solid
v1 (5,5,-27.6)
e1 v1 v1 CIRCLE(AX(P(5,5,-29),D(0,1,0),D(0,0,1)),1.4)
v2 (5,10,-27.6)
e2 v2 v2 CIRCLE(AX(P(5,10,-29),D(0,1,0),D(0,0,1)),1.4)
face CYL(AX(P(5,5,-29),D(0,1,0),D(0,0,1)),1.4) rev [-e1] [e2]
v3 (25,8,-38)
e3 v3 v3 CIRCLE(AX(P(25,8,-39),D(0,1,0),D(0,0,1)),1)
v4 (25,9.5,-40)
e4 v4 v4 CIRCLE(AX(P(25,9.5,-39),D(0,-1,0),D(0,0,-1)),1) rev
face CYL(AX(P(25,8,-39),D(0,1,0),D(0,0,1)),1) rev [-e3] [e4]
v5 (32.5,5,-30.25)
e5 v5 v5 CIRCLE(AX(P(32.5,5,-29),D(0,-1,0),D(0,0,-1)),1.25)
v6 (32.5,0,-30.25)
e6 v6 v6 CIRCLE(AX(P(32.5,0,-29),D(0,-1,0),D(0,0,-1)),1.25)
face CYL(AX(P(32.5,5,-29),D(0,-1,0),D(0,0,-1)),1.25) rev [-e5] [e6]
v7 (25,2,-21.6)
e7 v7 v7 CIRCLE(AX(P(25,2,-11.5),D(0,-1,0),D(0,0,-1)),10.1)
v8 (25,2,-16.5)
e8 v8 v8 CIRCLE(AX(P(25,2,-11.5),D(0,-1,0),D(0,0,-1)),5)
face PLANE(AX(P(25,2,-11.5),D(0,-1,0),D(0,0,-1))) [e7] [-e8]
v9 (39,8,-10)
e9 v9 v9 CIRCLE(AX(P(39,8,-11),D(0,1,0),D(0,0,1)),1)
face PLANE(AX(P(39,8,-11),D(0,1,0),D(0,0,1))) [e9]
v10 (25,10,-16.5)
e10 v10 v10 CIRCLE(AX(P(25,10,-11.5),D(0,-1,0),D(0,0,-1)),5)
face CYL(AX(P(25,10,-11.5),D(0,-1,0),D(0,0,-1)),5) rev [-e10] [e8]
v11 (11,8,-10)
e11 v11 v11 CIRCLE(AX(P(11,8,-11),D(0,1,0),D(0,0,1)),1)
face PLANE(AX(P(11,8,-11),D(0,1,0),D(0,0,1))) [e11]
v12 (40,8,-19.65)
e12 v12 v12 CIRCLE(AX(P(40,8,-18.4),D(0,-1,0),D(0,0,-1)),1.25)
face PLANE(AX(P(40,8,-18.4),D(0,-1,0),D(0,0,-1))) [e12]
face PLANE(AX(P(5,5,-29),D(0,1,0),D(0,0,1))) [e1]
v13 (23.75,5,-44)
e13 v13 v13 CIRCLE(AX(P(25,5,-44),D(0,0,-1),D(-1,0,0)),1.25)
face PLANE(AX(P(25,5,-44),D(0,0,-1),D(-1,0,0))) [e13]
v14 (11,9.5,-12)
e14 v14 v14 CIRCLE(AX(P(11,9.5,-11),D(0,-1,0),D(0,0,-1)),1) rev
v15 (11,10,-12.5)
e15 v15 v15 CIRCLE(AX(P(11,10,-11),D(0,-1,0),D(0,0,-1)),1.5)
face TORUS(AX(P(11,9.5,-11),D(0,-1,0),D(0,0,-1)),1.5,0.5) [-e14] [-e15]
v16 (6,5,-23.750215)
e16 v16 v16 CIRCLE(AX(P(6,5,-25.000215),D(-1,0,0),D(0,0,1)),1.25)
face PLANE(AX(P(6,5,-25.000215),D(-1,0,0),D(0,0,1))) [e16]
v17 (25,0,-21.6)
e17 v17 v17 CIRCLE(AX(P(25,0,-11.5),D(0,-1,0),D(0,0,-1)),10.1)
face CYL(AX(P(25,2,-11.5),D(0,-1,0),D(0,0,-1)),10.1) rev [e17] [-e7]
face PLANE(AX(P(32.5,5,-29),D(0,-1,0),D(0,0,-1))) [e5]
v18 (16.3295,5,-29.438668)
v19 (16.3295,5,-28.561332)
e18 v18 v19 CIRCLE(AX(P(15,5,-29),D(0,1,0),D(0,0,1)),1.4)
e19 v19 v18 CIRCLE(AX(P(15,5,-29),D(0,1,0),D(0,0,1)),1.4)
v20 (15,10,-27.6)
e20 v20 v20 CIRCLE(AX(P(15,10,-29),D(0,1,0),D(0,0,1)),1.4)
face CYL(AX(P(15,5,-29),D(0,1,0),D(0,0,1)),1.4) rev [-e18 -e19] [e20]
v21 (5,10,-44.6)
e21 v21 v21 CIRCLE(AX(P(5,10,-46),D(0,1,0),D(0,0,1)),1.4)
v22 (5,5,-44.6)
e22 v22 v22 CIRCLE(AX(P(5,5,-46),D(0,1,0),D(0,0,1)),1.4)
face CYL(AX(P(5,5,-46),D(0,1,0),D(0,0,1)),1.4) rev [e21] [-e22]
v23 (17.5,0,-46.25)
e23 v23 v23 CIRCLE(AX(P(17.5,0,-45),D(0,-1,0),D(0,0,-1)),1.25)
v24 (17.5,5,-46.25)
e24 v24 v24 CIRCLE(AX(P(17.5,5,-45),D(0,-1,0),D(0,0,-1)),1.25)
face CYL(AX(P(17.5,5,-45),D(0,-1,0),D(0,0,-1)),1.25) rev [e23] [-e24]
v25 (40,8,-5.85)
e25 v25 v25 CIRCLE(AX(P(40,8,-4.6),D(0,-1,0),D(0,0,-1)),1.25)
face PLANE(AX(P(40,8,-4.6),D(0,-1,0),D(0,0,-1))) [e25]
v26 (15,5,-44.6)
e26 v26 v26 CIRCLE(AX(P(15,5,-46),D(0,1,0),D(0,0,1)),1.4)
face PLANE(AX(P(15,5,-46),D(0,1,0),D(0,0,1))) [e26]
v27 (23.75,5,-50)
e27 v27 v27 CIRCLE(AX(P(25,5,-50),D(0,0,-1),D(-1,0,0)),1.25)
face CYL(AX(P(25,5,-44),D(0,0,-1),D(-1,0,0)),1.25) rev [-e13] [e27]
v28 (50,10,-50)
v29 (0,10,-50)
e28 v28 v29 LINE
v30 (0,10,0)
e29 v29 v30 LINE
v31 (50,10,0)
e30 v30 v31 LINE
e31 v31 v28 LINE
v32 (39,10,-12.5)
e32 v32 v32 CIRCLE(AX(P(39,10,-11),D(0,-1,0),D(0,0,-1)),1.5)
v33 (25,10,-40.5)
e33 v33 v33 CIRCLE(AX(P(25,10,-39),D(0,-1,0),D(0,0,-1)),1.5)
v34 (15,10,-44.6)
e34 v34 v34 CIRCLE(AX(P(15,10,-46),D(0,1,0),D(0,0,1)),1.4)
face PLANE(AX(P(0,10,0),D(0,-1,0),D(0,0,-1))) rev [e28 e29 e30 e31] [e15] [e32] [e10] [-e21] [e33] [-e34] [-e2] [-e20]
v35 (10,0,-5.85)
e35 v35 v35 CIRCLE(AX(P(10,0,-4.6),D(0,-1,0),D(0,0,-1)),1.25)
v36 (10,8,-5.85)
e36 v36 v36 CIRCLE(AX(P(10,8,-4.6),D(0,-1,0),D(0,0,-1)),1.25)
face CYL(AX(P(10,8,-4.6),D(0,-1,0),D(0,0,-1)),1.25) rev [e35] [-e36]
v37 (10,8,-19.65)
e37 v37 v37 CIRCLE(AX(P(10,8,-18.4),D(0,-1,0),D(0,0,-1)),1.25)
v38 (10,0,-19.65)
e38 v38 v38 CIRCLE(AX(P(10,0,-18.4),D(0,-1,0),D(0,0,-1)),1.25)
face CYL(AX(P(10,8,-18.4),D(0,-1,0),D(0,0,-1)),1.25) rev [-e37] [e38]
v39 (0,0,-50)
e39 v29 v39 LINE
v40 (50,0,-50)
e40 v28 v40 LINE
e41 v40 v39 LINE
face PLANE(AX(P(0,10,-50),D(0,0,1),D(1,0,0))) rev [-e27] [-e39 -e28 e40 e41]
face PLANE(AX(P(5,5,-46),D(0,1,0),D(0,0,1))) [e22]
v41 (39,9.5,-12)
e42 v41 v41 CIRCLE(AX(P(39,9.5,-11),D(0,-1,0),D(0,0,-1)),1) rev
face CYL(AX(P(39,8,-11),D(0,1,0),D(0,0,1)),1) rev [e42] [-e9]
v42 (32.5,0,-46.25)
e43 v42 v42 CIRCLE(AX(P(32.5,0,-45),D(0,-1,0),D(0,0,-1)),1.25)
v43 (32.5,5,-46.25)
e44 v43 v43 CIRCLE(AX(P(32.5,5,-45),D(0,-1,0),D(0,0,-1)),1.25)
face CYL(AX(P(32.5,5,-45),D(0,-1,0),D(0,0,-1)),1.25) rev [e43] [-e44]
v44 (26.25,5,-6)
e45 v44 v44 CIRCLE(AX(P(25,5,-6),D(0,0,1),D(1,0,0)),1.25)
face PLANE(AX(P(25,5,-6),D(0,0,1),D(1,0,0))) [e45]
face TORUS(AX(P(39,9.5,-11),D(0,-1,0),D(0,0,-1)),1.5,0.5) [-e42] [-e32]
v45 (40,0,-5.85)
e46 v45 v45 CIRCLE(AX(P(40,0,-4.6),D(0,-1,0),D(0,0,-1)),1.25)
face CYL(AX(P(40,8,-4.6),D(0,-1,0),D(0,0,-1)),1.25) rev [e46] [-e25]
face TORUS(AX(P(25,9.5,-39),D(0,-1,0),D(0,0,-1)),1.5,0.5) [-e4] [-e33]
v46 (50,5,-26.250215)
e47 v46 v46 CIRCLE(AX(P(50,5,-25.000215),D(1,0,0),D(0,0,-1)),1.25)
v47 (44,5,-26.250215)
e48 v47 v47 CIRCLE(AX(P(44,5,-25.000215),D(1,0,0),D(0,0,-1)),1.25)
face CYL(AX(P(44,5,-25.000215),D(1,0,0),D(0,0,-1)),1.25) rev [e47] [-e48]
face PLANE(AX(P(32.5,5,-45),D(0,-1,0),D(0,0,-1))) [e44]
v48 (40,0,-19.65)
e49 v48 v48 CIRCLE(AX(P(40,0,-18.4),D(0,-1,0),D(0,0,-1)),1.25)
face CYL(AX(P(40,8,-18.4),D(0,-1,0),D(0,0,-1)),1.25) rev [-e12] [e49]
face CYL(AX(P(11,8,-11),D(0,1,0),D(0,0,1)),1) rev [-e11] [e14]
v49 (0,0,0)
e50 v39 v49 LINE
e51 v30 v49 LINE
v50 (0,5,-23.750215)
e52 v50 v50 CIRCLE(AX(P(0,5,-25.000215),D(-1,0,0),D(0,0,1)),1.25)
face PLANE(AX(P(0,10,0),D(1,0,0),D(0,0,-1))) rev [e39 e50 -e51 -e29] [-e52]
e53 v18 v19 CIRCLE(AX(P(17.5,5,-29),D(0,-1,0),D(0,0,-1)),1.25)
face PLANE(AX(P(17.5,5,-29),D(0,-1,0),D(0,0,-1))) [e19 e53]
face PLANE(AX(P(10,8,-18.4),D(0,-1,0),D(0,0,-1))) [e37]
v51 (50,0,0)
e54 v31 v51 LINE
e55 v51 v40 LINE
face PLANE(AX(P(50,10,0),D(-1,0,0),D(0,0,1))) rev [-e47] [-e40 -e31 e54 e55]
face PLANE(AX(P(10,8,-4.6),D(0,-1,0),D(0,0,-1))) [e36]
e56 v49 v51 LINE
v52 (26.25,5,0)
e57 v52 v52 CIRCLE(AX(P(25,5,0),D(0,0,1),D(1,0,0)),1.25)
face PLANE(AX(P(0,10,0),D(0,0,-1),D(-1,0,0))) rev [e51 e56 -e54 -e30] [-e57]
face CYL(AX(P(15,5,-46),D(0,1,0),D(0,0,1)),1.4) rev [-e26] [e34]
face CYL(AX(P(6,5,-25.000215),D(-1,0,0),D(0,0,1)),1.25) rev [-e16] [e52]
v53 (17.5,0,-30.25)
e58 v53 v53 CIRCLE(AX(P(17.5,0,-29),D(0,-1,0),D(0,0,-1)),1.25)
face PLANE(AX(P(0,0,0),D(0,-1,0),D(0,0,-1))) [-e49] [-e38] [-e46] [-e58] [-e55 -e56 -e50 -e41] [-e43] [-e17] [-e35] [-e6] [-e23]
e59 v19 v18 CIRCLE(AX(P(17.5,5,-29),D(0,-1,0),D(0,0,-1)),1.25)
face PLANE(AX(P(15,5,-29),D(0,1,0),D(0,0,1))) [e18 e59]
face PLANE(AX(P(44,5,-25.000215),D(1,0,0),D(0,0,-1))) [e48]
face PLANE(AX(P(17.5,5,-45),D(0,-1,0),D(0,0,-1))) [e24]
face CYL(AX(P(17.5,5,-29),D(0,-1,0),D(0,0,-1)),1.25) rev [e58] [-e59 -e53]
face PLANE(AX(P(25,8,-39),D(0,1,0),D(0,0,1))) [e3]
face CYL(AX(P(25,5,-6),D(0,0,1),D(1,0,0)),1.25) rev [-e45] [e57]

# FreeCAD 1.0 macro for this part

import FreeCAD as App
import Part
import Sketcher

V = App.Vector
Q = App.Units.Quantity


def edges_at(feature, points):
    """Names of the edges that pass closest to the given points."""
    edges = feature.Shape.Edges
    near = lambda p: min(range(len(edges)), key=lambda i: edges[i].distToShape(Part.Vertex(*p))[0])
    return sorted({f"Edge{near(p) + 1}" for p in points})


def add_polygon(sketch, points):
    """Adds a closed chain of lines whose ends are joined by coincident constraints."""
    first, n = sketch.GeometryCount, len(points)
    for a, b in zip(points, points[1:] + points[:1]):
        sketch.addGeometry(Part.LineSegment(App.Vector(*a, 0), App.Vector(*b, 0)), False)
    for i in range(n):
        sketch.addConstraint(Sketcher.Constraint("Coincident", first + i, 2, first + (i + 1) % n, 1))

doc = App.newDocument("Part")
body = doc.addObject("PartDesign::Body", "Body")

# Sketch on XZ plane
sketch1 = body.newObject("Sketcher::SketchObject", "Sketch")
sketch1.AttachmentSupport = (doc.getObject("XZ_Plane"), [""])
sketch1.MapMode = "FlatFace"
add_polygon(sketch1, [(0, -50), (0, 0), (50, 0), (50, -50)])  # lines 0-3
sketch1.addConstraint(Sketcher.Constraint("Vertical", 0))
sketch1.addConstraint(Sketcher.Constraint("Horizontal", 1))
sketch1.addConstraint(Sketcher.Constraint("Vertical", 2))
sketch1.addConstraint(Sketcher.Constraint("Horizontal", 3))
sketch1.addConstraint(Sketcher.Constraint("Coincident", 0, 2, -1, 1))
sketch1.addConstraint(Sketcher.Constraint("Equal", 3, 0))
sketch1.addConstraint(Sketcher.Constraint("DistanceX", 1, 1, 1, 2, Q("50 mm")))
pad1 = body.newObject("PartDesign::Pad", "Pad")
pad1.Profile = sketch1
pad1.Length = 10
pad1.Reversed = True

# Sketch on XZ plane
sketch2 = body.newObject("Sketcher::SketchObject", "Sketch001")
sketch2.AttachmentSupport = (doc.getObject("XZ_Plane"), [""])
sketch2.MapMode = "FlatFace"
sketch2.addGeometry(Part.Circle(V(25, -12, 0), V(0, 0, 1), 10), False)
sketch2.addConstraint(Sketcher.Constraint("Diameter", 0, Q("20.2 mm")))
sketch2.addConstraint(Sketcher.Constraint("DistanceX", -1, 1, 0, 3, Q("25 mm")))
sketch2.addConstraint(Sketcher.Constraint("DistanceY", 0, 3, -1, 1, Q("11.5 mm")))
pocket1 = body.newObject("PartDesign::Pocket", "Pocket")
pocket1.Profile = sketch2
pocket1.Length = 2

# Sketch on XZ plane
sketch3 = body.newObject("Sketcher::SketchObject", "Sketch002")
sketch3.AttachmentSupport = (doc.getObject("XZ_Plane"), [""])
sketch3.MapMode = "FlatFace"
sketch3.AttachmentOffset = App.Placement(V(0, 0, -2), App.Rotation())
sketch3.addGeometry(Part.Circle(V(25, -12, 0), V(0, 0, 1), 5), False)
sketch3.addConstraint(Sketcher.Constraint("Diameter", 0, Q("10 mm")))
sketch3.addConstraint(Sketcher.Constraint("DistanceX", -1, 1, 0, 3, Q("25 mm")))
sketch3.addConstraint(Sketcher.Constraint("DistanceY", 0, 3, -1, 1, Q("11.5 mm")))
pocket2 = body.newObject("PartDesign::Pocket", "Pocket001")
pocket2.Profile = sketch3
pocket2.Type = "ThroughAll"

# Sketch on XZ plane
sketch4 = body.newObject("Sketcher::SketchObject", "Sketch003")
sketch4.AttachmentSupport = (doc.getObject("XZ_Plane"), [""])
sketch4.MapMode = "FlatFace"
sketch4.AttachmentOffset = App.Placement(V(0, 0, -10), App.Rotation())
sketch4.addGeometry(Part.Circle(V(25, -39, 0), V(0, 0, 1), 1), False)
sketch4.addGeometry(Part.Circle(V(11, -11, 0), V(0, 0, 1), 1), False)
sketch4.addGeometry(Part.Circle(V(39, -11, 0), V(0, 0, 1), 1), False)
sketch4.addConstraint(Sketcher.Constraint("Equal", 0, 1))
sketch4.addConstraint(Sketcher.Constraint("Equal", 1, 2))
sketch4.addConstraint(Sketcher.Constraint("Horizontal", 1, 3, 2, 3))
sketch4.addConstraint(Sketcher.Constraint("Diameter", 0, Q("2 mm")))
sketch4.addConstraint(Sketcher.Constraint("DistanceX", -1, 1, 0, 3, Q("25 mm")))
sketch4.addConstraint(Sketcher.Constraint("DistanceY", 0, 3, -1, 1, Q("39 mm")))
sketch4.addConstraint(Sketcher.Constraint("DistanceX", -1, 1, 1, 3, Q("11 mm")))
sketch4.addConstraint(Sketcher.Constraint("DistanceY", 1, 3, -1, 1, Q("11 mm")))
sketch4.addConstraint(Sketcher.Constraint("DistanceX", -1, 1, 2, 3, Q("39 mm")))
pocket3 = body.newObject("PartDesign::Pocket", "Pocket002")
pocket3.Profile = sketch4
pocket3.Length = 2
pocket3.Reversed = True

# Sketch on XZ plane
sketch5 = body.newObject("Sketcher::SketchObject", "Sketch004")
sketch5.AttachmentSupport = (doc.getObject("XZ_Plane"), [""])
sketch5.MapMode = "FlatFace"
sketch5.addGeometry(Part.Circle(V(40, -18.4, 0), V(0, 0, 1), 1.2), False)
sketch5.addGeometry(Part.Circle(V(40, -4.6, 0), V(0, 0, 1), 1.2), False)
sketch5.addGeometry(Part.Circle(V(10, -18.4, 0), V(0, 0, 1), 1.2), False)
sketch5.addGeometry(Part.Circle(V(10, -4.6, 0), V(0, 0, 1), 1.2), False)
sketch5.addConstraint(Sketcher.Constraint("Equal", 0, 1))
sketch5.addConstraint(Sketcher.Constraint("Equal", 1, 2))
sketch5.addConstraint(Sketcher.Constraint("Equal", 2, 3))
sketch5.addConstraint(Sketcher.Constraint("Horizontal", 0, 3, 2, 3))
sketch5.addConstraint(Sketcher.Constraint("Horizontal", 1, 3, 3, 3))
sketch5.addConstraint(Sketcher.Constraint("Vertical", 0, 3, 1, 3))
sketch5.addConstraint(Sketcher.Constraint("Vertical", 2, 3, 3, 3))
sketch5.addConstraint(Sketcher.Constraint("Diameter", 0, Q("2.5 mm")))
sketch5.addConstraint(Sketcher.Constraint("DistanceX", -1, 1, 0, 3, Q("40 mm")))
sketch5.addConstraint(Sketcher.Constraint("DistanceX", -1, 1, 2, 3, Q("10 mm")))
sketch5.addConstraint(Sketcher.Constraint("DistanceY", 0, 3, -1, 1, Q("18.4 mm")))
sketch5.addConstraint(Sketcher.Constraint("DistanceY", 1, 3, -1, 1, Q("4.6 mm")))
pocket4 = body.newObject("PartDesign::Pocket", "Pocket003")
pocket4.Profile = sketch5
pocket4.Length = 8

# Sketch on XZ plane
sketch6 = body.newObject("Sketcher::SketchObject", "Sketch005")
sketch6.AttachmentSupport = (doc.getObject("XZ_Plane"), [""])
sketch6.MapMode = "FlatFace"
sketch6.AttachmentOffset = App.Placement(V(0, 0, -10), App.Rotation())
sketch6.addGeometry(Part.Circle(V(15, -29, 0), V(0, 0, 1), 1.4), False)
sketch6.addGeometry(Part.Circle(V(5, -29, 0), V(0, 0, 1), 1.4), False)
sketch6.addGeometry(Part.Circle(V(15, -46, 0), V(0, 0, 1), 1.4), False)
sketch6.addGeometry(Part.Circle(V(5, -46, 0), V(0, 0, 1), 1.4), False)
sketch6.addConstraint(Sketcher.Constraint("Equal", 0, 1))
sketch6.addConstraint(Sketcher.Constraint("Equal", 1, 2))
sketch6.addConstraint(Sketcher.Constraint("Equal", 2, 3))
sketch6.addConstraint(Sketcher.Constraint("Horizontal", 0, 3, 1, 3))
sketch6.addConstraint(Sketcher.Constraint("Horizontal", 2, 3, 3, 3))
sketch6.addConstraint(Sketcher.Constraint("Vertical", 0, 3, 2, 3))
sketch6.addConstraint(Sketcher.Constraint("Vertical", 1, 3, 3, 3))
sketch6.addConstraint(Sketcher.Constraint("Diameter", 0, Q("2.8 mm")))
sketch6.addConstraint(Sketcher.Constraint("DistanceX", -1, 1, 0, 3, Q("15 mm")))
sketch6.addConstraint(Sketcher.Constraint("DistanceY", 0, 3, -1, 1, Q("29 mm")))
sketch6.addConstraint(Sketcher.Constraint("DistanceX", -1, 1, 1, 3, Q("5 mm")))
sketch6.addConstraint(Sketcher.Constraint("DistanceY", 2, 3, -1, 1, Q("46 mm")))
pocket5 = body.newObject("PartDesign::Pocket", "Pocket004")
pocket5.Profile = sketch6
pocket5.Length = 5
pocket5.Reversed = True
doc.recompute()

fillet = body.newObject("PartDesign::Fillet", "Fillet")
fillet.Base = (pocket5, edges_at(pocket5, [(25, 10, -40), (11, 10, -12), (39, 10, -12)]))
fillet.Radius = 0.5

# Sketch on XZ plane
sketch7 = body.newObject("Sketcher::SketchObject", "Sketch006")
sketch7.AttachmentSupport = (doc.getObject("XZ_Plane"), [""])
sketch7.MapMode = "FlatFace"
sketch7.addGeometry(Part.Circle(V(17.5, -29, 0), V(0, 0, 1), 1.2), False)
sketch7.addGeometry(Part.Circle(V(32.5, -29, 0), V(0, 0, 1), 1.2), False)
sketch7.addGeometry(Part.Circle(V(17.5, -45, 0), V(0, 0, 1), 1.2), False)
sketch7.addGeometry(Part.Circle(V(32.5, -45, 0), V(0, 0, 1), 1.2), False)
sketch7.addConstraint(Sketcher.Constraint("Equal", 0, 1))
sketch7.addConstraint(Sketcher.Constraint("Equal", 1, 2))
sketch7.addConstraint(Sketcher.Constraint("Equal", 2, 3))
sketch7.addConstraint(Sketcher.Constraint("Horizontal", 0, 3, 1, 3))
sketch7.addConstraint(Sketcher.Constraint("Horizontal", 2, 3, 3, 3))
sketch7.addConstraint(Sketcher.Constraint("Vertical", 0, 3, 2, 3))
sketch7.addConstraint(Sketcher.Constraint("Vertical", 1, 3, 3, 3))
sketch7.addConstraint(Sketcher.Constraint("Diameter", 0, Q("2.5 mm")))
sketch7.addConstraint(Sketcher.Constraint("DistanceY", 0, 3, -1, 1, Q("29 mm")))
sketch7.addConstraint(Sketcher.Constraint("DistanceY", 2, 3, -1, 1, Q("45 mm")))
sketch7.addConstraint(Sketcher.Constraint("DistanceX", 0, 3, 1, 3, Q("15 mm")))
sketch7.addConstraint(Sketcher.Constraint("DistanceX", -1, 1, 0, 3, Q("17.5 mm")))
pocket6 = body.newObject("PartDesign::Pocket", "Pocket005")
pocket6.Profile = sketch7
pocket6.Length = 5

# Sketch on YZ plane
sketch8 = body.newObject("Sketcher::SketchObject", "Sketch007")
sketch8.AttachmentSupport = (doc.getObject("YZ_Plane"), [""])
sketch8.MapMode = "FlatFace"
sketch8.addGeometry(Part.Circle(V(5, -25, 0), V(0, 0, 1), 1.2), False)
sketch8.addConstraint(Sketcher.Constraint("Diameter", 0, Q("2.5 mm")))
sketch8.addConstraint(Sketcher.Constraint("DistanceX", -1, 1, 0, 3, Q("5 mm")))
sketch8.addConstraint(Sketcher.Constraint("DistanceY", 0, 3, -1, 1, Q("25.000215 mm")))
pocket7 = body.newObject("PartDesign::Pocket", "Pocket006")
pocket7.Profile = sketch8
pocket7.Length = 6
pocket7.Reversed = True

# Sketch on YZ plane
sketch9 = body.newObject("Sketcher::SketchObject", "Sketch008")
sketch9.AttachmentSupport = (doc.getObject("YZ_Plane"), [""])
sketch9.MapMode = "FlatFace"
sketch9.AttachmentOffset = App.Placement(V(0, 0, 44), App.Rotation())
sketch9.addGeometry(Part.Circle(V(5, -25, 0), V(0, 0, 1), 1.2), False)
sketch9.addConstraint(Sketcher.Constraint("Diameter", 0, Q("2.5 mm")))
sketch9.addConstraint(Sketcher.Constraint("DistanceX", -1, 1, 0, 3, Q("5 mm")))
sketch9.addConstraint(Sketcher.Constraint("DistanceY", 0, 3, -1, 1, Q("25.000215 mm")))
pocket8 = body.newObject("PartDesign::Pocket", "Pocket007")
pocket8.Profile = sketch9
pocket8.Length = 6
pocket8.Reversed = True

# Sketch on XY plane
sketch10 = body.newObject("Sketcher::SketchObject", "Sketch009")
sketch10.AttachmentSupport = (doc.getObject("XY_Plane"), [""])
sketch10.MapMode = "FlatFace"
sketch10.AttachmentOffset = App.Placement(V(0, 0, -50), App.Rotation())
sketch10.addGeometry(Part.Circle(V(25, 5, 0), V(0, 0, 1), 1.2), False)
sketch10.addConstraint(Sketcher.Constraint("Diameter", 0, Q("2.5 mm")))
sketch10.addConstraint(Sketcher.Constraint("DistanceX", -1, 1, 0, 3, Q("25 mm")))
sketch10.addConstraint(Sketcher.Constraint("DistanceY", -1, 1, 0, 3, Q("5 mm")))
pocket9 = body.newObject("PartDesign::Pocket", "Pocket008")
pocket9.Profile = sketch10
pocket9.Length = 6
pocket9.Reversed = True

# Sketch on XY plane
sketch11 = body.newObject("Sketcher::SketchObject", "Sketch010")
sketch11.AttachmentSupport = (doc.getObject("XY_Plane"), [""])
sketch11.MapMode = "FlatFace"
sketch11.AttachmentOffset = App.Placement(V(0, 0, -6), App.Rotation())
sketch11.addGeometry(Part.Circle(V(25, 5, 0), V(0, 0, 1), 1.2), False)
sketch11.addConstraint(Sketcher.Constraint("Diameter", 0, Q("2.5 mm")))
sketch11.addConstraint(Sketcher.Constraint("DistanceX", -1, 1, 0, 3, Q("25 mm")))
sketch11.addConstraint(Sketcher.Constraint("DistanceY", -1, 1, 0, 3, Q("5 mm")))
pocket10 = body.newObject("PartDesign::Pocket", "Pocket009")
pocket10.Profile = sketch11
pocket10.Length = 6
pocket10.Reversed = True

doc.recompute()
